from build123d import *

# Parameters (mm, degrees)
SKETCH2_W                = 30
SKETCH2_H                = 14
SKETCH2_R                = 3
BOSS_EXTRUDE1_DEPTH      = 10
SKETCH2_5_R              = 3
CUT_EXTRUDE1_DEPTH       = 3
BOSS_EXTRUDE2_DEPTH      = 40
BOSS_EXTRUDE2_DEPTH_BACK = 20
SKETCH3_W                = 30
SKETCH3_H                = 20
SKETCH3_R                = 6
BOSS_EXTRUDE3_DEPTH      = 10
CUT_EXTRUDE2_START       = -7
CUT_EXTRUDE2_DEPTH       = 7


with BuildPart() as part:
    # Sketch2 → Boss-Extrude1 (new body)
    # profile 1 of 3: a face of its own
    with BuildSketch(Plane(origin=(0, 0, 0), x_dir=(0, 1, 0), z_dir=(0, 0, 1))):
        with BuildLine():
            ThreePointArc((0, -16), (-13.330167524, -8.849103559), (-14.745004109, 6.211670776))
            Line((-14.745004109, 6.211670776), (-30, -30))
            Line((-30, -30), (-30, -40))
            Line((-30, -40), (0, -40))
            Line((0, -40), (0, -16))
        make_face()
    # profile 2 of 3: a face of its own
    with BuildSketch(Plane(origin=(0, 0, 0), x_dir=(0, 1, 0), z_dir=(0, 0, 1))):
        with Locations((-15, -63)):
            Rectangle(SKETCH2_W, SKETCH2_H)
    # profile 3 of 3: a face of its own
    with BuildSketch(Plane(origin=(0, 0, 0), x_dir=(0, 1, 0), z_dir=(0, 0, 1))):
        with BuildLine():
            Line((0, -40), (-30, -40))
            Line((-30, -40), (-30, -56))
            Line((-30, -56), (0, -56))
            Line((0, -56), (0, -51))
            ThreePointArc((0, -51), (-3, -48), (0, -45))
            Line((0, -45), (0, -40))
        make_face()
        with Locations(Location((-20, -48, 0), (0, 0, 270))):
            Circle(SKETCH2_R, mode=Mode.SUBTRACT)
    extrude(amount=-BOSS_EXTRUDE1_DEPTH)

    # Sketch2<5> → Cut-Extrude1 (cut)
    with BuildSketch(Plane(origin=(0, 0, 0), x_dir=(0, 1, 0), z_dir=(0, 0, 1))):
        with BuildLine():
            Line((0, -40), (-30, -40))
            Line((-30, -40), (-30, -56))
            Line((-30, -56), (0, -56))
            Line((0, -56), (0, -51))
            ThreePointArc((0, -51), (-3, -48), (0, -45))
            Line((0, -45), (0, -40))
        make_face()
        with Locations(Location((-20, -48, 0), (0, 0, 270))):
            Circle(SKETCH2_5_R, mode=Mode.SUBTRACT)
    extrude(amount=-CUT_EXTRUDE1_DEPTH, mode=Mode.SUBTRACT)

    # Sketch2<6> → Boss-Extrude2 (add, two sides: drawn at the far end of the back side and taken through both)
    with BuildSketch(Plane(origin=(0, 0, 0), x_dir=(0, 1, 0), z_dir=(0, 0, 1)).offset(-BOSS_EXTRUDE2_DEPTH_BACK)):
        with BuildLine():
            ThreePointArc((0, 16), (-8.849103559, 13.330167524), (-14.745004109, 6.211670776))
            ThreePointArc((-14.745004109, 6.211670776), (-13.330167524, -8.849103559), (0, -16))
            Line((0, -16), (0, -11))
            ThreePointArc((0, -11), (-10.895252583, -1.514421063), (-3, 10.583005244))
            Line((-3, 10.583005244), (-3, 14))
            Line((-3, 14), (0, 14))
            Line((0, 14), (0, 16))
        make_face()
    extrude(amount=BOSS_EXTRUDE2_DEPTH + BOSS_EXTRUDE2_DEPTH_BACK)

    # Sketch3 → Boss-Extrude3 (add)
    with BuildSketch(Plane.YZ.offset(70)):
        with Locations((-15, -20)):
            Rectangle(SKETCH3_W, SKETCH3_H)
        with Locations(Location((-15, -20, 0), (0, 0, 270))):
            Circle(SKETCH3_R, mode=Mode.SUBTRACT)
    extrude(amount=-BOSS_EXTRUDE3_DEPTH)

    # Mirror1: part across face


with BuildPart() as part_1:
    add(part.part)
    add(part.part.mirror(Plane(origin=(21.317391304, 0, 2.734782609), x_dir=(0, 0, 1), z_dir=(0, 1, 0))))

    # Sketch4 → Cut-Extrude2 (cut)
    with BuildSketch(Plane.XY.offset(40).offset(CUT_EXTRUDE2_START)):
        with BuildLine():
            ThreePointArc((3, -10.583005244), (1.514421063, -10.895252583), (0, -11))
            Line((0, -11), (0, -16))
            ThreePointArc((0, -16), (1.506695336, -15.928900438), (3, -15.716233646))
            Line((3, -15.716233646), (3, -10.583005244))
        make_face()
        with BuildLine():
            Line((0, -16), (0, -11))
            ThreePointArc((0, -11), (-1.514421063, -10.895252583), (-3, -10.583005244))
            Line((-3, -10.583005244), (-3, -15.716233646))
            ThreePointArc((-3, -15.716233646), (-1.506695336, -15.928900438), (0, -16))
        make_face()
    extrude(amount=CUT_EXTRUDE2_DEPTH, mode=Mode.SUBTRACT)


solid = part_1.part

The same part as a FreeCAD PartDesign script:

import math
import FreeCAD as App
import Part
import Sketcher
Q = App.Units.Quantity

doc = App.newDocument("Part")
body = doc.addObject("PartDesign::Body", "Body")

sketch1 = body.newObject("Sketcher::SketchObject", "Sketch")
sketch1.AttachmentSupport = (doc.getObject("XY_Plane"), [""])
sketch1.MapMode = "FlatFace"
sketch1.addGeometry([
    Part.ArcOfCircle(Part.Circle(App.Vector(0, 0, 0), App.Vector(0, 0, 1), 16), math.radians(-113), math.radians(0)),
    Part.LineSegment(App.Vector(-6.2, -14.7, 0), App.Vector(30, -30, 0)),
    Part.LineSegment(App.Vector(30, -30, 0), App.Vector(70, -30, 0)),
    Part.LineSegment(App.Vector(70, -30, 0), App.Vector(70, 0, 0)),
    Part.LineSegment(App.Vector(70, 0, 0), App.Vector(51, 0, 0)),
    Part.ArcOfCircle(Part.Circle(App.Vector(48, 0, 0), App.Vector(0, 0, 1), 3), math.radians(180), math.radians(360)),
    Part.LineSegment(App.Vector(45, 0, 0), App.Vector(16, 0, 0)),
    Part.Circle(App.Vector(48, -20, 0), App.Vector(0, 0, 1), 3),
], False)
sketch1.addConstraint([
    Sketcher.Constraint("Tangent", 0, 1, 1, 1),
    Sketcher.Constraint("Coincident", 1, 2, 2, 1),
    Sketcher.Constraint("Coincident", 2, 2, 3, 1),
    Sketcher.Constraint("Coincident", 3, 2, 4, 1),
    Sketcher.Constraint("Coincident", 4, 2, 5, 2),
    Sketcher.Constraint("Coincident", 5, 1, 6, 1),
    Sketcher.Constraint("Coincident", 6, 2, 0, 2),
    Sketcher.Constraint("Horizontal", 2),
    Sketcher.Constraint("Vertical", 3),
    Sketcher.Constraint("Horizontal", 4),
    Sketcher.Constraint("Horizontal", 6),
    Sketcher.Constraint("Coincident", 0, 3, -1, 1),
    Sketcher.Constraint("Equal", 5, 7),
    Sketcher.Constraint("PointOnObject", 5, 3, -1),
    Sketcher.Constraint("PointOnObject", 3, 2, -1),
    Sketcher.Constraint("PointOnObject", 5, 1, -1),
    Sketcher.Constraint("Vertical", 5, 3, 7, 3),
    Sketcher.Constraint("Diameter", 7, Q("6 mm")),
    Sketcher.Constraint("Radius", 0, Q("16 mm")),
    Sketcher.Constraint("DistanceX", 2, 1, 2, 2, Q("40 mm")),
    Sketcher.Constraint("DistanceX", 4, 2, 4, 1, Q("19 mm")),
    Sketcher.Constraint("DistanceX", 6, 2, 6, 1, Q("29 mm")),
    Sketcher.Constraint("DistanceY", 3, 1, 3, 2, Q("30 mm")),
    Sketcher.Constraint("DistanceY", 7, 3, -1, 1, Q("20 mm")),
])
pad1 = body.newObject("PartDesign::Pad", "Pad")
pad1.Profile = sketch1
pad1.Length = 10
pad1.Reversed = True

sketch2 = body.newObject("Sketcher::SketchObject", "Sketch001")
sketch2.AttachmentSupport = (doc.getObject("XY_Plane"), [""])
sketch2.MapMode = "FlatFace"
sketch2.addGeometry([
    Part.LineSegment(App.Vector(40, 0, 0), App.Vector(40, -30, 0)),
    Part.LineSegment(App.Vector(40, -30, 0), App.Vector(56, -30, 0)),
    Part.LineSegment(App.Vector(56, -30, 0), App.Vector(56, 0, 0)),
    Part.LineSegment(App.Vector(56, 0, 0), App.Vector(51, 0, 0)),
    Part.ArcOfCircle(Part.Circle(App.Vector(48, 0, 0), App.Vector(0, 0, 1), 3), math.radians(180), math.radians(360)),
    Part.LineSegment(App.Vector(45, 0, 0), App.Vector(40, 0, 0)),
    Part.Circle(App.Vector(48, -20, 0), App.Vector(0, 0, 1), 3),
], False)
sketch2.addConstraint([
    Sketcher.Constraint("Coincident", 0, 2, 1, 1),
    Sketcher.Constraint("Coincident", 1, 2, 2, 1),
    Sketcher.Constraint("Coincident", 2, 2, 3, 1),
    Sketcher.Constraint("Coincident", 3, 2, 4, 2),
    Sketcher.Constraint("Coincident", 4, 1, 5, 1),
    Sketcher.Constraint("Coincident", 5, 2, 0, 1),
    Sketcher.Constraint("Vertical", 0),
    Sketcher.Constraint("Horizontal", 1),
    Sketcher.Constraint("Vertical", 2),
    Sketcher.Constraint("Horizontal", 3),
    Sketcher.Constraint("Horizontal", 5),
    Sketcher.Constraint("Equal", 4, 6),
    Sketcher.Constraint("PointOnObject", 4, 3, -1),
    Sketcher.Constraint("PointOnObject", 2, 2, -1),
    Sketcher.Constraint("PointOnObject", 4, 1, -1),
    Sketcher.Constraint("Vertical", 4, 3, 6, 3),
    Sketcher.Constraint("Equal", 3, 5),
    Sketcher.Constraint("Diameter", 6, Q("6 mm")),
    Sketcher.Constraint("DistanceX", 1, 1, 1, 2, Q("16 mm")),
    Sketcher.Constraint("DistanceY", 0, 2, 0, 1, Q("30 mm")),
    Sketcher.Constraint("DistanceX", -1, 1, 4, 3, Q("48 mm")),
    Sketcher.Constraint("DistanceY", 6, 3, -1, 1, Q("20 mm")),
])
pocket1 = body.newObject("PartDesign::Pocket", "Pocket")
pocket1.Profile = sketch2
pocket1.Length = 3

sketch3 = body.newObject("Sketcher::SketchObject", "Sketch002")
sketch3.AttachmentSupport = (doc.getObject("XY_Plane"), [""])
sketch3.MapMode = "FlatFace"
sketch3.addGeometry([
    Part.ArcOfCircle(Part.Circle(App.Vector(0, 0, 0), App.Vector(0, 0, 1), 16), math.radians(180), math.radians(247)),
    Part.ArcOfCircle(Part.Circle(App.Vector(0, 0, 0), App.Vector(0, 0, 1), 16), math.radians(-113), math.radians(0)),
    Part.LineSegment(App.Vector(16, 0, 0), App.Vector(11, 0, 0)),
    Part.ArcOfCircle(Part.Circle(App.Vector(0, 0, 0), App.Vector(0, 0, 1), 11), math.radians(-164), math.radians(0)),
    Part.LineSegment(App.Vector(-10.6, -3, 0), App.Vector(-14, -3, 0)),
    Part.LineSegment(App.Vector(-14, -3, 0), App.Vector(-14, 0, 0)),
    Part.LineSegment(App.Vector(-14, 0, 0), App.Vector(-16, 0, 0)),
], False)
sketch3.addConstraint([
    Sketcher.Constraint("Tangent", 0, 2, 1, 1),
    Sketcher.Constraint("Coincident", 1, 2, 2, 1),
    Sketcher.Constraint("Coincident", 2, 2, 3, 2),
    Sketcher.Constraint("Coincident", 3, 1, 4, 1),
    Sketcher.Constraint("Coincident", 4, 2, 5, 1),
    Sketcher.Constraint("Coincident", 5, 2, 6, 1),
    Sketcher.Constraint("Coincident", 6, 2, 0, 1),
    Sketcher.Constraint("Horizontal", 2),
    Sketcher.Constraint("Horizontal", 4),
    Sketcher.Constraint("Vertical", 5),
    Sketcher.Constraint("Horizontal", 6),
    Sketcher.Constraint("Coincident", 0, 3, -1, 1),
    Sketcher.Constraint("Coincident", 3, 3, -1, 1),
    Sketcher.Constraint("Equal", 0, 1),
    Sketcher.Constraint("PointOnObject", 1, 2, -1),
    Sketcher.Constraint("PointOnObject", 5, 2, -1),
    Sketcher.Constraint("Radius", 0, Q("16 mm")),
    Sketcher.Constraint("Radius", 3, Q("11 mm")),
    Sketcher.Constraint("DistanceX", 6, 2, 6, 1, Q("2 mm")),
    Sketcher.Constraint("DistanceY", 5, 1, 5, 2, Q("3 mm")),
    Sketcher.Constraint("DistanceX", 0, 2, -1, 1, Q("6.211671 mm")),
])
pad2 = body.newObject("PartDesign::Pad", "Pad001")
pad2.Profile = sketch3
pad2.Type = "TwoLengths"
pad2.Length = 40
pad2.Length2 = 20

sketch4 = body.newObject("Sketcher::SketchObject", "Sketch003")
sketch4.AttachmentSupport = (doc.getObject("YZ_Plane"), [""])
sketch4.MapMode = "FlatFace"
sketch4.AttachmentOffset = App.Placement(App.Vector(0, 0, 70), App.Rotation())
sketch4.addGeometry([
    Part.LineSegment(App.Vector(-30, -10, 0), App.Vector(-30, -30, 0)),
    Part.LineSegment(App.Vector(-30, -30, 0), App.Vector(0, -30, 0)),
    Part.LineSegment(App.Vector(0, -30, 0), App.Vector(0, -10, 0)),
    Part.LineSegment(App.Vector(0, -10, 0), App.Vector(-30, -10, 0)),
    Part.Circle(App.Vector(-15, -20, 0), App.Vector(0, 0, 1), 6),
], False)
sketch4.addConstraint([
    Sketcher.Constraint("Coincident", 0, 2, 1, 1),
    Sketcher.Constraint("Coincident", 1, 2, 2, 1),
    Sketcher.Constraint("Coincident", 2, 2, 3, 1),
    Sketcher.Constraint("Coincident", 3, 2, 0, 1),
    Sketcher.Constraint("Vertical", 0),
    Sketcher.Constraint("Horizontal", 1),
    Sketcher.Constraint("Vertical", 2),
    Sketcher.Constraint("Horizontal", 3),
    Sketcher.Constraint("PointOnObject", 1, 2, -2),
    Sketcher.Constraint("Diameter", 4, Q("12 mm")),
    Sketcher.Constraint("DistanceX", 1, 1, 1, 2, Q("30 mm")),
    Sketcher.Constraint("DistanceY", 0, 2, 0, 1, Q("20 mm")),
    Sketcher.Constraint("DistanceX", 4, 3, -1, 1, Q("15 mm")),
    Sketcher.Constraint("DistanceY", 4, 3, -1, 1, Q("20 mm")),
    Sketcher.Constraint("DistanceY", 0, 2, -1, 1, Q("30 mm")),
])
pad3 = body.newObject("PartDesign::Pad", "Pad002")
pad3.Profile = sketch4
pad3.Length = 10
pad3.Reversed = True
body2 = doc.addObject("PartDesign::Body", "Body001")
doc.recompute()

body2.BaseFeature = body
doc.recompute()

mirroring = doc.addObject("Part::Mirroring", "Mirroring")
mirroring.Source = body
mirroring.Base = App.Vector(21.317391, 0, 2.734783)
mirroring.Normal = App.Vector(0, 1, 0)
body3 = doc.addObject("PartDesign::Body", "Body002")
body3.BaseFeature = mirroring
boolean = body2.newObject("PartDesign::Boolean", "Boolean")
boolean.Type = "Fuse"
boolean.addObjects([body3])
doc.recompute()

sketch5 = body2.newObject("Sketcher::SketchObject", "Sketch004")
sketch5.AttachmentSupport = (doc.getObject("XY_Plane001"), [""])
sketch5.MapMode = "FlatFace"
sketch5.AttachmentOffset = App.Placement(App.Vector(0, 0, 33), App.Rotation())
sketch5.addGeometry([
    Part.ArcOfCircle(Part.Circle(App.Vector(0, 0, 0), App.Vector(0, 0, 1), 11), math.radians(-90), math.radians(-74.17)),
    Part.ArcOfCircle(Part.Circle(App.Vector(0, 0, 0), App.Vector(0, 0, 1), 11), math.radians(-105.83), math.radians(-90)),
    Part.LineSegment(App.Vector(-3, -10.6, 0), App.Vector(-3, -15.7, 0)),
    Part.ArcOfCircle(Part.Circle(App.Vector(0, 0, 0), App.Vector(0, 0, 1), 16), math.radians(-100.81), math.radians(-90)),
    Part.ArcOfCircle(Part.Circle(App.Vector(0, 0, 0), App.Vector(0, 0, 1), 16), math.radians(-90), math.radians(-79.19)),
    Part.LineSegment(App.Vector(3, -15.7, 0), App.Vector(3, -10.6, 0)),
], False)
sketch5.addConstraint([
    Sketcher.Constraint("Tangent", 0, 1, 1, 2),
    Sketcher.Constraint("Coincident", 1, 1, 2, 1),
    Sketcher.Constraint("Coincident", 2, 2, 3, 1),
    Sketcher.Constraint("Tangent", 3, 2, 4, 1),
    Sketcher.Constraint("Coincident", 4, 2, 5, 1),
    Sketcher.Constraint("Coincident", 5, 2, 0, 2),
    Sketcher.Constraint("Vertical", 2),
    Sketcher.Constraint("Vertical", 5),
    Sketcher.Constraint("Coincident", 0, 3, -1, 1),
    Sketcher.Constraint("Coincident", 3, 3, -1, 1),
    Sketcher.Constraint("Equal", 0, 1),
    Sketcher.Constraint("Equal", 3, 4),
    Sketcher.Constraint("PointOnObject", 0, 1, -2),
    Sketcher.Constraint("PointOnObject", 3, 2, -2),
    Sketcher.Constraint("Horizontal", 2, 2, 4, 2),
    Sketcher.Constraint("Radius", 0, Q("11 mm")),
    Sketcher.Constraint("Radius", 3, Q("16 mm")),
    Sketcher.Constraint("DistanceX", 1, 1, -1, 1, Q("3 mm")),
])
pocket2 = body2.newObject("PartDesign::Pocket", "Pocket001")
pocket2.Profile = sketch5
pocket2.Length = 7
pocket2.Reversed = True
mirroring.Visibility = False

doc.recompute()
